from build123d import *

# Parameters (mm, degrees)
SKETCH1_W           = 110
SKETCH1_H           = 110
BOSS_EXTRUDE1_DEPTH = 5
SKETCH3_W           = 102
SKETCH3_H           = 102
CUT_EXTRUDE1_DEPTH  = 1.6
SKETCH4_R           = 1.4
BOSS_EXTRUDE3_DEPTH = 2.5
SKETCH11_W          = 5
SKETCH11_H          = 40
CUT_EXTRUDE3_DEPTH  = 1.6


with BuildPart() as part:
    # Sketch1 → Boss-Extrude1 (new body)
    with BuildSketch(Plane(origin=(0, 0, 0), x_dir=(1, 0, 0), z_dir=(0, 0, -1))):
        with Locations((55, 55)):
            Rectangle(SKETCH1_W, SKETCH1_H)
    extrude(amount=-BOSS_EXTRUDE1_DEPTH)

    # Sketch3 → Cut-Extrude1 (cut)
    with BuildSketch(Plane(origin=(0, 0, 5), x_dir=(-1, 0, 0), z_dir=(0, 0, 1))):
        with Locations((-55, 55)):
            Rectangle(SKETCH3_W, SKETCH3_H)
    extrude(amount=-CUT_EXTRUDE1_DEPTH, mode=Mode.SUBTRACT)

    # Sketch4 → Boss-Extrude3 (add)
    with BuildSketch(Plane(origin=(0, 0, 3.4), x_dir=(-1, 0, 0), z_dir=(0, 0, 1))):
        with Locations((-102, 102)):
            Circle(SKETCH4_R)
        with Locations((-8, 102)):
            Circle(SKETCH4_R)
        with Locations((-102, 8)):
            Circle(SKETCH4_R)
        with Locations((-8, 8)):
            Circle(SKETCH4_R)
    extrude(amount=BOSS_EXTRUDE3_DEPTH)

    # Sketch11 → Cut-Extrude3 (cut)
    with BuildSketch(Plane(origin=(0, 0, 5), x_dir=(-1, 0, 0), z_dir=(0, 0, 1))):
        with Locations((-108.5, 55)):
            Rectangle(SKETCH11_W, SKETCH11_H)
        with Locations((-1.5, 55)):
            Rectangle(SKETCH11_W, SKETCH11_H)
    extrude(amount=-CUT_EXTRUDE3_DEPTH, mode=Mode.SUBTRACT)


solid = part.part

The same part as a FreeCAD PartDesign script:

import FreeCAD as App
import Part
import Sketcher
from FreeCAD import Vector

doc = App.newDocument("Part")
params = doc.addObject("Spreadsheet::Sheet", "Params")
for row, (alias, value) in enumerate([
    ("sketch1_width", "110 mm"),
    ("pad1_length", "5 mm"),
    ("sketch2_width", "102 mm"),
    ("pocket1_length", "1.6 mm"),
    ("sketch3_diameter", "2.8 mm"),
    ("pad2_length", "2.5 mm"),
    ("sketch4_width", "5 mm"),
    ("sketch4_height", "40 mm"),
    ("pocket2_length", "1.6 mm"),
], start=1):
    params.set(f"A{row}", alias)
    params.set(f"B{row}", "=" + value)
    params.setAlias(f"B{row}", alias)

body = doc.addObject("PartDesign::Body", "Body")

# Sketch on XY plane
sketch1 = body.newObject("Sketcher::SketchObject", "Sketch")
sketch1.AttachmentSupport = (doc.getObject("XY_Plane"), [""])
sketch1.MapMode = "FlatFace"
sketch1.addGeometry([
    Part.LineSegment(Vector(0, -110, 0), Vector(0, 0, 0)),
    Part.LineSegment(Vector(0, 0, 0), Vector(110, 0, 0)),
    Part.LineSegment(Vector(110, 0, 0), Vector(110, -110, 0)),
    Part.LineSegment(Vector(110, -110, 0), Vector(0, -110, 0)),
], False)
sketch1.addConstraint([
    Sketcher.Constraint("Coincident", 0, 2, 1, 1),
    Sketcher.Constraint("Coincident", 1, 2, 2, 1),
    Sketcher.Constraint("Coincident", 2, 2, 3, 1),
    Sketcher.Constraint("Coincident", 3, 2, 0, 1),
    Sketcher.Constraint("Vertical", 0),
    Sketcher.Constraint("Horizontal", 1),
    Sketcher.Constraint("Vertical", 2),
    Sketcher.Constraint("Horizontal", 3),
    Sketcher.Constraint("Coincident", 0, 2, -1, 1),
    Sketcher.Constraint("Equal", 3, 0),
    Sketcher.Constraint("DistanceX", 1, 1, 1, 2, 110.0),
])
sketch1.setExpression("Constraints[10]", "Params.sketch1_width")
pad1 = body.newObject("PartDesign::Pad", "Pad")
pad1.Profile = sketch1
pad1.setExpression("Length", "Params.pad1_length")

# Sketch on XY plane
sketch2 = body.newObject("Sketcher::SketchObject", "Sketch001")
sketch2.AttachmentSupport = (doc.getObject("XY_Plane"), [""])
sketch2.MapMode = "FlatFace"
sketch2.AttachmentOffset = App.Placement(Vector(0, 0, 5), App.Rotation())
sketch2.addGeometry([
    Part.LineSegment(Vector(106, -106, 0), Vector(106, -4, 0)),
    Part.LineSegment(Vector(106, -4, 0), Vector(4, -4, 0)),
    Part.LineSegment(Vector(4, -4, 0), Vector(4, -106, 0)),
    Part.LineSegment(Vector(4, -106, 0), Vector(106, -106, 0)),
], False)
sketch2.addConstraint([
    Sketcher.Constraint("Coincident", 0, 2, 1, 1),
    Sketcher.Constraint("Coincident", 1, 2, 2, 1),
    Sketcher.Constraint("Coincident", 2, 2, 3, 1),
    Sketcher.Constraint("Coincident", 3, 2, 0, 1),
    Sketcher.Constraint("Vertical", 0),
    Sketcher.Constraint("Horizontal", 1),
    Sketcher.Constraint("Vertical", 2),
    Sketcher.Constraint("Horizontal", 3),
    Sketcher.Constraint("Equal", 3, 0),
    Sketcher.Constraint("DistanceX", 1, 2, 1, 1, 102.0),
    Sketcher.Constraint("DistanceX", -1, 1, 0, 2, 106.0),
    Sketcher.Constraint("DistanceY", 0, 2, -1, 1, 4.0),
])
sketch2.setExpression("Constraints[9]", "Params.sketch2_width")
pocket1 = body.newObject("PartDesign::Pocket", "Pocket")
pocket1.Profile = sketch2
pocket1.setExpression("Length", "Params.pocket1_length")

# Sketch on XY plane
sketch3 = body.newObject("Sketcher::SketchObject", "Sketch002")
sketch3.AttachmentSupport = (doc.getObject("XY_Plane"), [""])
sketch3.MapMode = "FlatFace"
sketch3.AttachmentOffset = App.Placement(Vector(0, 0, 3.4), App.Rotation())
sketch3.addGeometry([
    Part.Circle(Vector(102, -102, 0), Vector(0, 0, 1), 1.4),
    Part.Circle(Vector(8, -102, 0), Vector(0, 0, 1), 1.4),
    Part.Circle(Vector(102, -8, 0), Vector(0, 0, 1), 1.4),
    Part.Circle(Vector(8, -8, 0), Vector(0, 0, 1), 1.4),
], False)
sketch3.addConstraint([
    Sketcher.Constraint("Equal", 0, 1),
    Sketcher.Constraint("Equal", 1, 2),
    Sketcher.Constraint("Equal", 2, 3),
    Sketcher.Constraint("Horizontal", 0, 3, 1, 3),
    Sketcher.Constraint("Horizontal", 2, 3, 3, 3),
    Sketcher.Constraint("Vertical", 0, 3, 2, 3),
    Sketcher.Constraint("Vertical", 1, 3, 3, 3),
    Sketcher.Constraint("Diameter", 0, 2.8),
    Sketcher.Constraint("DistanceX", -1, 1, 0, 3, 102.0),
    Sketcher.Constraint("DistanceY", 0, 3, -1, 1, 102.0),
    Sketcher.Constraint("DistanceX", -1, 1, 1, 3, 8.0),
    Sketcher.Constraint("DistanceY", 2, 3, -1, 1, 8.0),
])
sketch3.setExpression("Constraints[7]", "Params.sketch3_diameter")
pad2 = body.newObject("PartDesign::Pad", "Pad001")
pad2.Profile = sketch3
pad2.setExpression("Length", "Params.pad2_length")

# Sketch on XY plane
sketch4 = body.newObject("Sketcher::SketchObject", "Sketch003")
sketch4.AttachmentSupport = (doc.getObject("XY_Plane"), [""])
sketch4.MapMode = "FlatFace"
sketch4.AttachmentOffset = App.Placement(Vector(0, 0, 5), App.Rotation())
sketch4.addGeometry([
    Part.LineSegment(Vector(111, -75, 0), Vector(111, -35, 0)),  # 0
    Part.LineSegment(Vector(111, -35, 0), Vector(106, -35, 0)),  # 1
    Part.LineSegment(Vector(106, -35, 0), Vector(106, -75, 0)),  # 2
    Part.LineSegment(Vector(106, -75, 0), Vector(111, -75, 0)),  # 3
    Part.LineSegment(Vector(4, -75, 0), Vector(4, -35, 0)),  # 4
    Part.LineSegment(Vector(4, -35, 0), Vector(-1, -35, 0)),  # 5
    Part.LineSegment(Vector(-1, -35, 0), Vector(-1, -75, 0)),  # 6
    Part.LineSegment(Vector(-1, -75, 0), Vector(4, -75, 0)),  # 7
], False)
sketch4.addConstraint([
    Sketcher.Constraint("Coincident", 0, 2, 1, 1),
    Sketcher.Constraint("Coincident", 1, 2, 2, 1),
    Sketcher.Constraint("Coincident", 2, 2, 3, 1),
    Sketcher.Constraint("Coincident", 3, 2, 0, 1),
    Sketcher.Constraint("Coincident", 4, 2, 5, 1),
    Sketcher.Constraint("Coincident", 5, 2, 6, 1),
    Sketcher.Constraint("Coincident", 6, 2, 7, 1),
    Sketcher.Constraint("Coincident", 7, 2, 4, 1),
    Sketcher.Constraint("Vertical", 0),
    Sketcher.Constraint("Horizontal", 1),
    Sketcher.Constraint("Vertical", 2),
    Sketcher.Constraint("Horizontal", 3),
    Sketcher.Constraint("Vertical", 4),
    Sketcher.Constraint("Horizontal", 5),
    Sketcher.Constraint("Vertical", 6),
    Sketcher.Constraint("Horizontal", 7),
    Sketcher.Constraint("Horizontal", 1, 2, 4, 2),
    Sketcher.Constraint("Horizontal", 3, 2, 6, 2),
    Sketcher.Constraint("Equal", 3, 5),
    Sketcher.Constraint("DistanceX", 1, 2, 1, 1, 5.0),
    Sketcher.Constraint("DistanceY", 0, 1, 0, 2, 40.0),
    Sketcher.Constraint("DistanceX", -1, 1, 0, 2, 111.0),
    Sketcher.Constraint("DistanceY", 0, 2, -1, 1, 35.0),
    Sketcher.Constraint("DistanceX", -1, 1, 4, 2, 4.0),
])
sketch4.setExpression("Constraints[19]", "Params.sketch4_width")
sketch4.setExpression("Constraints[20]", "Params.sketch4_height")
pocket2 = body.newObject("PartDesign::Pocket", "Pocket001")
pocket2.Profile = sketch4
pocket2.setExpression("Length", "Params.pocket2_length")

doc.recompute()
